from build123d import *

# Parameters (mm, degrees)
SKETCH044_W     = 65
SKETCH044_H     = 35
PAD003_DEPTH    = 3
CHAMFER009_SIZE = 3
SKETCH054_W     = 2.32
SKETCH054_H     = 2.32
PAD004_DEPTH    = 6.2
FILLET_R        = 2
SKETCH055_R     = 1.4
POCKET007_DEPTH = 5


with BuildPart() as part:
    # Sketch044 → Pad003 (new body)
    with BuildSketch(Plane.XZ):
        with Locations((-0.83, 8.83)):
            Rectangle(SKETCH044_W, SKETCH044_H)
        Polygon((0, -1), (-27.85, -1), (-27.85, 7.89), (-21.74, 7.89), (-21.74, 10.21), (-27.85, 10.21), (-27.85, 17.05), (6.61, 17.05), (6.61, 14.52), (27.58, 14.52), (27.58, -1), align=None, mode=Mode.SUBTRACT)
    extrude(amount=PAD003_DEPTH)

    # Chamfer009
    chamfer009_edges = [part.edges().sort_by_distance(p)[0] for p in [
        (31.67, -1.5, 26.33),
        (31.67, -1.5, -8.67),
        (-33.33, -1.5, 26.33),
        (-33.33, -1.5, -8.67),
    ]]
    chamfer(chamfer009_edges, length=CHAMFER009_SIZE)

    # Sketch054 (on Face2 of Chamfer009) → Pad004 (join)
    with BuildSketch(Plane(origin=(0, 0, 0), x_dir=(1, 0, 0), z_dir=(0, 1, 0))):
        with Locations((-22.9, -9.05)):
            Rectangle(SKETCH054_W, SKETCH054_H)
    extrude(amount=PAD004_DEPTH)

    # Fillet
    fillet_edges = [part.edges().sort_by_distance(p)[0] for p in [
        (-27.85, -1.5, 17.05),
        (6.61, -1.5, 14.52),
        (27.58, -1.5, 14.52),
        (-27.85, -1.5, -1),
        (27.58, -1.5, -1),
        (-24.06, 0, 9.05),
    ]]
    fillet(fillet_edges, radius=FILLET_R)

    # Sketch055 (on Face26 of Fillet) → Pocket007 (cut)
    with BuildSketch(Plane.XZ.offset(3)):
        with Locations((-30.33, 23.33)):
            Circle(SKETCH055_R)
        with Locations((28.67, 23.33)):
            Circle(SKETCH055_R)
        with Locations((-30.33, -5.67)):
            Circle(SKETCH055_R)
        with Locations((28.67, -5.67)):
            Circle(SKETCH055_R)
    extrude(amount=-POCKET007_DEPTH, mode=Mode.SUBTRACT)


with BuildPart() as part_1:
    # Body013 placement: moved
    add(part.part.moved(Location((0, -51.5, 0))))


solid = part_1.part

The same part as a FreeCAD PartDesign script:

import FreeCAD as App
import Part
import Sketcher
Q = App.Units.Quantity


def edges_at(feature, points):
    """Names of the edges that pass closest to the given points."""
    edges = feature.Shape.Edges
    near = lambda p: min(range(len(edges)), key=lambda i: edges[i].distToShape(Part.Vertex(*p))[0])
    return sorted({f"Edge{near(p) + 1}" for p in points})


def add_polygon(sketch, points):
    """Adds a closed chain of lines whose ends are joined by coincident constraints."""
    first, n = sketch.GeometryCount, len(points)
    for a, b in zip(points, points[1:] + points[:1]):
        sketch.addGeometry(Part.LineSegment(App.Vector(*a, 0), App.Vector(*b, 0)), False)
    for i in range(n):
        sketch.addConstraint(Sketcher.Constraint("Coincident", first + i, 2, first + (i + 1) % n, 1))

doc = App.newDocument("Part")
params = doc.addObject("Spreadsheet::Sheet", "Params")
for row, (alias, value) in enumerate([
    ("sketch1_width", "65 mm"),
    ("sketch1_height", "35 mm"),
    ("sketch1_width2", "55.43 mm"),
    ("sketch1_width3", "6.11 mm"),
    ("sketch1_width4", "34.46 mm"),
    ("pad1_length", "3 mm"),
    ("chamfer_size", "3 mm"),
    ("sketch2_width", "2.32 mm"),
    ("pad2_length", "6.2 mm"),
    ("fillet_radius", "2 mm"),
    ("sketch3_diameter", "2.8 mm"),
    ("pocket1_length", "5 mm"),
], start=1):
    params.set(f"A{row}", alias)
    params.set(f"B{row}", "=" + value)
    params.setAlias(f"B{row}", alias)

body = doc.addObject("PartDesign::Body", "Body")

# Sketch on XZ plane
sketch1 = body.newObject("Sketcher::SketchObject", "Sketch")
sketch1.AttachmentSupport = (doc.getObject("XZ_Plane"), [""])
sketch1.MapMode = "FlatFace"
add_polygon(sketch1, [(-33.3, 26.3), (-33.3, -8.7), (31.7, -8.7), (31.7, 26.3)])  # lines 0-3
add_polygon(sketch1, [(27.6, -1), (-27.9, -1), (-27.9, 7.9), (-21.7, 7.9), (-21.7, 10.2), (-27.9, 10.2), (-27.9, 17.1), (6.6, 17.1), (6.6, 14.5), (27.6, 14.5)])  # lines 4-13
sketch1.addConstraint(Sketcher.Constraint("Vertical", 0))
sketch1.addConstraint(Sketcher.Constraint("Horizontal", 1))
sketch1.addConstraint(Sketcher.Constraint("Vertical", 2))
sketch1.addConstraint(Sketcher.Constraint("Horizontal", 3))
sketch1.addConstraint(Sketcher.Constraint("Horizontal", 4))
sketch1.addConstraint(Sketcher.Constraint("Vertical", 5))
sketch1.addConstraint(Sketcher.Constraint("Horizontal", 6))
sketch1.addConstraint(Sketcher.Constraint("Vertical", 7))
sketch1.addConstraint(Sketcher.Constraint("Horizontal", 8))
sketch1.addConstraint(Sketcher.Constraint("Vertical", 9))
sketch1.addConstraint(Sketcher.Constraint("Horizontal", 10))
sketch1.addConstraint(Sketcher.Constraint("Vertical", 11))
sketch1.addConstraint(Sketcher.Constraint("Horizontal", 12))
sketch1.addConstraint(Sketcher.Constraint("Vertical", 13))
sketch1.addConstraint(Sketcher.Constraint("Vertical", 5, 2, 8, 2))
sketch1.addConstraint(Sketcher.Constraint("DistanceX", 1, 1, 1, 2, Q("65 mm")))
sketch1.addConstraint(Sketcher.Constraint("DistanceY", 0, 2, 0, 1, Q("35 mm")))
sketch1.addConstraint(Sketcher.Constraint("DistanceY", 4, 2, -1, 1, Q("1 mm")))
sketch1.addConstraint(Sketcher.Constraint("DistanceX", 4, 2, 4, 1, Q("55.43 mm")))
sketch1.addConstraint(Sketcher.Constraint("DistanceX", 6, 1, 6, 2, Q("6.11 mm")))
sketch1.addConstraint(Sketcher.Constraint("DistanceX", 10, 1, 10, 2, Q("34.46 mm")))
sketch1.addConstraint(Sketcher.Constraint("DistanceY", 5, 1, 5, 2, Q("8.89 mm")))
sketch1.addConstraint(Sketcher.Constraint("DistanceY", 7, 1, 7, 2, Q("2.32 mm")))
sketch1.addConstraint(Sketcher.Constraint("DistanceY", 9, 1, 9, 2, Q("6.84 mm")))
sketch1.addConstraint(Sketcher.Constraint("DistanceY", 11, 2, 11, 1, Q("2.53 mm")))
sketch1.addConstraint(Sketcher.Constraint("DistanceX", 0, 2, -1, 1, Q("33.33 mm")))
sketch1.addConstraint(Sketcher.Constraint("DistanceY", 0, 2, -1, 1, Q("8.67 mm")))
sketch1.addConstraint(Sketcher.Constraint("DistanceX", 4, 2, -1, 1, Q("27.85 mm")))
sketch1.setExpression("Constraints[29]", "Params.sketch1_width")
sketch1.setExpression("Constraints[30]", "Params.sketch1_height")
sketch1.setExpression("Constraints[32]", "Params.sketch1_width2")
sketch1.setExpression("Constraints[33]", "Params.sketch1_width3")
sketch1.setExpression("Constraints[34]", "Params.sketch1_width4")
pad1 = body.newObject("PartDesign::Pad", "Pad")
pad1.Profile = sketch1
pad1.setExpression("Length", "Params.pad1_length")
doc.recompute()

chamfer = body.newObject("PartDesign::Chamfer", "Chamfer")
chamfer.Base = (pad1, edges_at(pad1, [
    (31.67, -1.5, 26.33),
    (31.67, -1.5, -8.67),
    (-33.33, -1.5, 26.33),
    (-33.33, -1.5, -8.67),
]))
chamfer.setExpression("Size", "Params.chamfer_size")

# Sketch on XZ plane
sketch2 = body.newObject("Sketcher::SketchObject", "Sketch001")
sketch2.AttachmentSupport = (doc.getObject("XZ_Plane"), [""])
sketch2.MapMode = "FlatFace"
add_polygon(sketch2, [(-24.1, 7.9), (-24.1, 10.2), (-21.7, 10.2), (-21.7, 7.9)])  # lines 0-3
sketch2.addConstraint(Sketcher.Constraint("Vertical", 0))
sketch2.addConstraint(Sketcher.Constraint("Horizontal", 1))
sketch2.addConstraint(Sketcher.Constraint("Vertical", 2))
sketch2.addConstraint(Sketcher.Constraint("Horizontal", 3))
sketch2.addConstraint(Sketcher.Constraint("Equal", 3, 0))
sketch2.addConstraint(Sketcher.Constraint("DistanceX", 1, 1, 1, 2, Q("2.32 mm")))
sketch2.addConstraint(Sketcher.Constraint("DistanceX", 0, 2, -1, 1, Q("24.06 mm")))
sketch2.addConstraint(Sketcher.Constraint("DistanceY", -1, 1, 0, 2, Q("10.21 mm")))
sketch2.setExpression("Constraints[9]", "Params.sketch2_width")
pad2 = body.newObject("PartDesign::Pad", "Pad001")
pad2.Profile = sketch2
pad2.setExpression("Length", "Params.pad2_length")
pad2.Reversed = True
doc.recompute()

fillet = body.newObject("PartDesign::Fillet", "Fillet")
fillet.Base = (pad2, edges_at(pad2, [
    (-27.85, -1.5, 17.05),
    (6.61, -1.5, 14.52),
    (27.58, -1.5, 14.52),
    (-27.85, -1.5, -1),
    (27.58, -1.5, -1),
    (-24.06, 0, 9.05),
]))
fillet.setExpression("Radius", "Params.fillet_radius")

# Sketch on XZ plane
sketch3 = body.newObject("Sketcher::SketchObject", "Sketch002")
sketch3.AttachmentSupport = (doc.getObject("XZ_Plane"), [""])
sketch3.MapMode = "FlatFace"
sketch3.AttachmentOffset = App.Placement(App.Vector(0, 0, 3), App.Rotation())
sketch3.addGeometry(Part.Circle(App.Vector(-30.3, 23.3, 0), App.Vector(0, 0, 1), 1.4), False)
sketch3.addGeometry(Part.Circle(App.Vector(28.7, 23.3, 0), App.Vector(0, 0, 1), 1.4), False)
sketch3.addGeometry(Part.Circle(App.Vector(-30.3, -5.7, 0), App.Vector(0, 0, 1), 1.4), False)
sketch3.addGeometry(Part.Circle(App.Vector(28.7, -5.7, 0), App.Vector(0, 0, 1), 1.4), False)
sketch3.addConstraint(Sketcher.Constraint("Equal", 0, 1))
sketch3.addConstraint(Sketcher.Constraint("Equal", 1, 2))
sketch3.addConstraint(Sketcher.Constraint("Equal", 2, 3))
sketch3.addConstraint(Sketcher.Constraint("Horizontal", 0, 3, 1, 3))
sketch3.addConstraint(Sketcher.Constraint("Horizontal", 2, 3, 3, 3))
sketch3.addConstraint(Sketcher.Constraint("Vertical", 0, 3, 2, 3))
sketch3.addConstraint(Sketcher.Constraint("Vertical", 1, 3, 3, 3))
sketch3.addConstraint(Sketcher.Constraint("Diameter", 0, Q("2.8 mm")))
sketch3.addConstraint(Sketcher.Constraint("DistanceX", 0, 3, 1, 3, Q("59 mm")))
sketch3.addConstraint(Sketcher.Constraint("DistanceY", 2, 3, 0, 3, Q("29 mm")))
sketch3.addConstraint(Sketcher.Constraint("DistanceX", 0, 3, -1, 1, Q("30.33 mm")))
sketch3.addConstraint(Sketcher.Constraint("DistanceY", -1, 1, 0, 3, Q("23.33 mm")))
sketch3.setExpression("Constraints[7]", "Params.sketch3_diameter")
pocket1 = body.newObject("PartDesign::Pocket", "Pocket")
pocket1.Profile = sketch3
pocket1.setExpression("Length", "Params.pocket1_length")
body2 = doc.addObject("PartDesign::Body", "Body001")
doc.recompute()

body.Placement = App.Placement(App.Vector(0, -51.5, 0), App.Rotation(App.Vector(0, 0, 1), 0))
boolean = body2.newObject("PartDesign::Boolean", "Boolean")
boolean.Type = "Fuse"
boolean.addObjects([body])

doc.recompute()
